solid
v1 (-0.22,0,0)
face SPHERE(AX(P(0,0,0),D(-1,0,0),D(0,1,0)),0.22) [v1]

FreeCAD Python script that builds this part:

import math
import FreeCAD as App
import Part
import Sketcher
from FreeCAD import Vector

doc = App.newDocument("Part")
params = doc.addObject("Spreadsheet::Sheet", "Params")
for row, (alias, value) in enumerate([
    ("sketch1_radius", "0.22 mm"),
    ("revolution_angle", "360 deg"),
], start=1):
    params.set(f"A{row}", alias)
    params.set(f"B{row}", "=" + value)
    params.setAlias(f"B{row}", alias)

body = doc.addObject("PartDesign::Body", "Body")

# Sketch on XY plane
sketch1 = body.newObject("Sketcher::SketchObject", "Sketch")
sketch1.AttachmentSupport = (doc.getObject("XY_Plane"), [""])
sketch1.MapMode = "FlatFace"
sketch1.addGeometry(Part.LineSegment(Vector(0.22, 0, 0), Vector(-0.22, 0, 0)), False)
sketch1.addGeometry(Part.ArcOfCircle(Part.Circle(Vector(0, 0, 0), Vector(0, 0, 1), 0.22), math.radians(180), math.radians(360)), False)
sketch1.addConstraint(Sketcher.Constraint("Coincident", 0, 1, 1, 2))
sketch1.addConstraint(Sketcher.Constraint("Coincident", 1, 1, 0, 2))
sketch1.addConstraint(Sketcher.Constraint("Horizontal", 0))
sketch1.addConstraint(Sketcher.Constraint("Coincident", 1, 3, -1, 1))
sketch1.addConstraint(Sketcher.Constraint("PointOnObject", 0, 1, -1))
sketch1.addConstraint(Sketcher.Constraint("Radius", 1, 0.22))
sketch1.setExpression("Constraints[5]", "Params.sketch1_radius")
revolution = body.newObject("PartDesign::Revolution", "Revolution")
revolution.Profile = sketch1
revolution.ReferenceAxis = (sketch1, ["H_Axis"])
revolution.setExpression("Angle", "Params.revolution_angle")

doc.recompute()
